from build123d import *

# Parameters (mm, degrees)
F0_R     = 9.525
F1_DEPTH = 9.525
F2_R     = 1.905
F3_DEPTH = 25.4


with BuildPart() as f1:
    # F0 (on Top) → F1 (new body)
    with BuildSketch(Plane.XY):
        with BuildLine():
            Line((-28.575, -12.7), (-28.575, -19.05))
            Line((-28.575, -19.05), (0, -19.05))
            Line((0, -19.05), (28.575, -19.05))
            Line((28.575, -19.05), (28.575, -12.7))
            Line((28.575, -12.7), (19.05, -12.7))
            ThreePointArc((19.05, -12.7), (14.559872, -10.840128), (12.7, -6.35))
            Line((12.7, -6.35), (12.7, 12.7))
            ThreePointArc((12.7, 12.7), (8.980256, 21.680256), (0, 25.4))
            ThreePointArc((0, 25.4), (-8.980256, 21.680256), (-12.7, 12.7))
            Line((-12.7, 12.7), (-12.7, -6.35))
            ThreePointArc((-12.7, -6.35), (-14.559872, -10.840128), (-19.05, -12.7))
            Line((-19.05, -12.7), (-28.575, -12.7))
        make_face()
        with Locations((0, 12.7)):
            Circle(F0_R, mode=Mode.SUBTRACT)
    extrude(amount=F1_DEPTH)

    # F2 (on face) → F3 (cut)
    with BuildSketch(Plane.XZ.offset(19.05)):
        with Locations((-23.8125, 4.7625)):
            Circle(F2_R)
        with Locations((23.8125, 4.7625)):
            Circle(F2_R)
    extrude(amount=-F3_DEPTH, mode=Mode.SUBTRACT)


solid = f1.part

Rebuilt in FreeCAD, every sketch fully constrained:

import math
import FreeCAD as App
import Part
import Sketcher

V = App.Vector
Q = App.Units.Quantity

doc = App.newDocument("Part")
params = doc.addObject("Spreadsheet::Sheet", "Params")
for row, (alias, value) in enumerate([
    ("sketch1_radius", "0.5 in"),
    ("sketch1_diameter", "0.75 in"),
    ("sketch1_radius2", "0.25 in"),
    ("sketch1_width", "2.25 in"),
    ("sketch1_height", "0.25 in"),
    ("pad1_length", "0.375 in"),
    ("sketch2_diameter", "0.15 in"),
    ("pocket1_length", "1 in"),
], start=1):
    params.set(f"A{row}", alias)
    params.set(f"B{row}", "=" + value)
    params.setAlias(f"B{row}", alias)

body = doc.addObject("PartDesign::Body", "Body")

# Sketch on XY plane
sketch1 = body.newObject("Sketcher::SketchObject", "Sketch")
sketch1.AttachmentSupport = (doc.getObject("XY_Plane"), [""])
sketch1.MapMode = "FlatFace"
sketch1.addGeometry([
    Part.LineSegment(V(-29, -13, 0), V(-29, -19, 0)),  # 0
    Part.LineSegment(V(-29, -19, 0), V(29, -19, 0)),  # 1
    Part.LineSegment(V(29, -19, 0), V(29, -13, 0)),  # 2
    Part.LineSegment(V(29, -13, 0), V(19, -13, 0)),  # 3
    Part.ArcOfCircle(Part.Circle(V(19, -6, 0), V(0, 0, 1), 6), math.radians(-180), math.radians(-90)),  # 4
    Part.LineSegment(V(13, -6, 0), V(13, 13, 0)),  # 5
    Part.ArcOfCircle(Part.Circle(V(0, 13, 0), V(0, 0, 1), 13), math.radians(0), math.radians(90)),  # 6
    Part.ArcOfCircle(Part.Circle(V(0, 13, 0), V(0, 0, 1), 13), math.radians(90), math.radians(180)),  # 7
    Part.LineSegment(V(-13, 13, 0), V(-13, -6, 0)),  # 8
    Part.ArcOfCircle(Part.Circle(V(-19, -6, 0), V(0, 0, 1), 6), math.radians(-90), math.radians(0)),  # 9
    Part.LineSegment(V(-19, -13, 0), V(-29, -13, 0)),  # 10
    Part.Circle(V(0, 13, 0), V(0, 0, 1), 10),  # 11
], False)
sketch1.addConstraint([
    Sketcher.Constraint("Coincident", 0, 2, 1, 1),
    Sketcher.Constraint("Coincident", 1, 2, 2, 1),
    Sketcher.Constraint("Coincident", 2, 2, 3, 1),
    Sketcher.Constraint("Tangent", 3, 2, 4, 2),
    Sketcher.Constraint("Tangent", 4, 1, 5, 1),
    Sketcher.Constraint("Tangent", 5, 2, 6, 1),
    Sketcher.Constraint("Tangent", 6, 2, 7, 1),
    Sketcher.Constraint("Tangent", 7, 2, 8, 1),
    Sketcher.Constraint("Tangent", 8, 2, 9, 2),
    Sketcher.Constraint("Tangent", 9, 1, 10, 1),
    Sketcher.Constraint("Coincident", 10, 2, 0, 1),
    Sketcher.Constraint("Vertical", 0),
    Sketcher.Constraint("Horizontal", 1),
    Sketcher.Constraint("Vertical", 2),
    Sketcher.Constraint("Horizontal", 3),
    Sketcher.Constraint("Vertical", 5),
    Sketcher.Constraint("Vertical", 8),
    Sketcher.Constraint("Horizontal", 10),
    Sketcher.Constraint("Coincident", 11, 3, 6, 3),
    Sketcher.Constraint("Equal", 6, 7),
    Sketcher.Constraint("Equal", 4, 9),
    Sketcher.Constraint("Symmetric", 4, 3, 9, 3, -2),
    Sketcher.Constraint("PointOnObject", 6, 2, -2),
    Sketcher.Constraint("Equal", 3, 10),
    Sketcher.Constraint("Radius", 6, Q("0.5 in")),
    Sketcher.Constraint("Diameter", 11, Q("0.75 in")),
    Sketcher.Constraint("Radius", 4, Q("0.25 in")),
    Sketcher.Constraint("DistanceY", -1, 1, 6, 2, Q("1 in")),
    Sketcher.Constraint("DistanceY", 2, 2, 7, 3, Q("1 in")),
    Sketcher.Constraint("DistanceX", 1, 1, 1, 2, Q("2.25 in")),
    Sketcher.Constraint("DistanceY", 0, 2, 0, 1, Q("0.25 in")),
])
sketch1.setExpression("Constraints[24]", "Params.sketch1_radius")
sketch1.setExpression("Constraints[25]", "Params.sketch1_diameter")
sketch1.setExpression("Constraints[26]", "Params.sketch1_radius2")
sketch1.setExpression("Constraints[29]", "Params.sketch1_width")
sketch1.setExpression("Constraints[30]", "Params.sketch1_height")
pad1 = body.newObject("PartDesign::Pad", "Pad")
pad1.Profile = sketch1
pad1.setExpression("Length", "Params.pad1_length")

# Sketch on XZ plane
sketch2 = body.newObject("Sketcher::SketchObject", "Sketch001")
sketch2.AttachmentSupport = (doc.getObject("XZ_Plane"), [""])
sketch2.MapMode = "FlatFace"
sketch2.AttachmentOffset = App.Placement(V(0, 0, 0.75 * 25.4), App.Rotation())
sketch2.addGeometry([
    Part.Circle(V(-23.8, 4.8, 0), V(0, 0, 1), 1.9),
    Part.Circle(V(23.8, 4.8, 0), V(0, 0, 1), 1.9),
], False)
sketch2.addConstraint([
    Sketcher.Constraint("Equal", 0, 1),
    Sketcher.Constraint("Symmetric", 0, 3, 1, 3, -2),
    Sketcher.Constraint("Diameter", 0, Q("0.15 in")),
    Sketcher.Constraint("DistanceX", 0, 3, -1, 1, Q("0.9375 in")),
    Sketcher.Constraint("DistanceY", -1, 1, 0, 3, Q("0.1875 in")),
])
sketch2.setExpression("Constraints[2]", "Params.sketch2_diameter")
pocket1 = body.newObject("PartDesign::Pocket", "Pocket")
pocket1.Profile = sketch2
pocket1.setExpression("Length", "Params.pocket1_length")

doc.recompute()
